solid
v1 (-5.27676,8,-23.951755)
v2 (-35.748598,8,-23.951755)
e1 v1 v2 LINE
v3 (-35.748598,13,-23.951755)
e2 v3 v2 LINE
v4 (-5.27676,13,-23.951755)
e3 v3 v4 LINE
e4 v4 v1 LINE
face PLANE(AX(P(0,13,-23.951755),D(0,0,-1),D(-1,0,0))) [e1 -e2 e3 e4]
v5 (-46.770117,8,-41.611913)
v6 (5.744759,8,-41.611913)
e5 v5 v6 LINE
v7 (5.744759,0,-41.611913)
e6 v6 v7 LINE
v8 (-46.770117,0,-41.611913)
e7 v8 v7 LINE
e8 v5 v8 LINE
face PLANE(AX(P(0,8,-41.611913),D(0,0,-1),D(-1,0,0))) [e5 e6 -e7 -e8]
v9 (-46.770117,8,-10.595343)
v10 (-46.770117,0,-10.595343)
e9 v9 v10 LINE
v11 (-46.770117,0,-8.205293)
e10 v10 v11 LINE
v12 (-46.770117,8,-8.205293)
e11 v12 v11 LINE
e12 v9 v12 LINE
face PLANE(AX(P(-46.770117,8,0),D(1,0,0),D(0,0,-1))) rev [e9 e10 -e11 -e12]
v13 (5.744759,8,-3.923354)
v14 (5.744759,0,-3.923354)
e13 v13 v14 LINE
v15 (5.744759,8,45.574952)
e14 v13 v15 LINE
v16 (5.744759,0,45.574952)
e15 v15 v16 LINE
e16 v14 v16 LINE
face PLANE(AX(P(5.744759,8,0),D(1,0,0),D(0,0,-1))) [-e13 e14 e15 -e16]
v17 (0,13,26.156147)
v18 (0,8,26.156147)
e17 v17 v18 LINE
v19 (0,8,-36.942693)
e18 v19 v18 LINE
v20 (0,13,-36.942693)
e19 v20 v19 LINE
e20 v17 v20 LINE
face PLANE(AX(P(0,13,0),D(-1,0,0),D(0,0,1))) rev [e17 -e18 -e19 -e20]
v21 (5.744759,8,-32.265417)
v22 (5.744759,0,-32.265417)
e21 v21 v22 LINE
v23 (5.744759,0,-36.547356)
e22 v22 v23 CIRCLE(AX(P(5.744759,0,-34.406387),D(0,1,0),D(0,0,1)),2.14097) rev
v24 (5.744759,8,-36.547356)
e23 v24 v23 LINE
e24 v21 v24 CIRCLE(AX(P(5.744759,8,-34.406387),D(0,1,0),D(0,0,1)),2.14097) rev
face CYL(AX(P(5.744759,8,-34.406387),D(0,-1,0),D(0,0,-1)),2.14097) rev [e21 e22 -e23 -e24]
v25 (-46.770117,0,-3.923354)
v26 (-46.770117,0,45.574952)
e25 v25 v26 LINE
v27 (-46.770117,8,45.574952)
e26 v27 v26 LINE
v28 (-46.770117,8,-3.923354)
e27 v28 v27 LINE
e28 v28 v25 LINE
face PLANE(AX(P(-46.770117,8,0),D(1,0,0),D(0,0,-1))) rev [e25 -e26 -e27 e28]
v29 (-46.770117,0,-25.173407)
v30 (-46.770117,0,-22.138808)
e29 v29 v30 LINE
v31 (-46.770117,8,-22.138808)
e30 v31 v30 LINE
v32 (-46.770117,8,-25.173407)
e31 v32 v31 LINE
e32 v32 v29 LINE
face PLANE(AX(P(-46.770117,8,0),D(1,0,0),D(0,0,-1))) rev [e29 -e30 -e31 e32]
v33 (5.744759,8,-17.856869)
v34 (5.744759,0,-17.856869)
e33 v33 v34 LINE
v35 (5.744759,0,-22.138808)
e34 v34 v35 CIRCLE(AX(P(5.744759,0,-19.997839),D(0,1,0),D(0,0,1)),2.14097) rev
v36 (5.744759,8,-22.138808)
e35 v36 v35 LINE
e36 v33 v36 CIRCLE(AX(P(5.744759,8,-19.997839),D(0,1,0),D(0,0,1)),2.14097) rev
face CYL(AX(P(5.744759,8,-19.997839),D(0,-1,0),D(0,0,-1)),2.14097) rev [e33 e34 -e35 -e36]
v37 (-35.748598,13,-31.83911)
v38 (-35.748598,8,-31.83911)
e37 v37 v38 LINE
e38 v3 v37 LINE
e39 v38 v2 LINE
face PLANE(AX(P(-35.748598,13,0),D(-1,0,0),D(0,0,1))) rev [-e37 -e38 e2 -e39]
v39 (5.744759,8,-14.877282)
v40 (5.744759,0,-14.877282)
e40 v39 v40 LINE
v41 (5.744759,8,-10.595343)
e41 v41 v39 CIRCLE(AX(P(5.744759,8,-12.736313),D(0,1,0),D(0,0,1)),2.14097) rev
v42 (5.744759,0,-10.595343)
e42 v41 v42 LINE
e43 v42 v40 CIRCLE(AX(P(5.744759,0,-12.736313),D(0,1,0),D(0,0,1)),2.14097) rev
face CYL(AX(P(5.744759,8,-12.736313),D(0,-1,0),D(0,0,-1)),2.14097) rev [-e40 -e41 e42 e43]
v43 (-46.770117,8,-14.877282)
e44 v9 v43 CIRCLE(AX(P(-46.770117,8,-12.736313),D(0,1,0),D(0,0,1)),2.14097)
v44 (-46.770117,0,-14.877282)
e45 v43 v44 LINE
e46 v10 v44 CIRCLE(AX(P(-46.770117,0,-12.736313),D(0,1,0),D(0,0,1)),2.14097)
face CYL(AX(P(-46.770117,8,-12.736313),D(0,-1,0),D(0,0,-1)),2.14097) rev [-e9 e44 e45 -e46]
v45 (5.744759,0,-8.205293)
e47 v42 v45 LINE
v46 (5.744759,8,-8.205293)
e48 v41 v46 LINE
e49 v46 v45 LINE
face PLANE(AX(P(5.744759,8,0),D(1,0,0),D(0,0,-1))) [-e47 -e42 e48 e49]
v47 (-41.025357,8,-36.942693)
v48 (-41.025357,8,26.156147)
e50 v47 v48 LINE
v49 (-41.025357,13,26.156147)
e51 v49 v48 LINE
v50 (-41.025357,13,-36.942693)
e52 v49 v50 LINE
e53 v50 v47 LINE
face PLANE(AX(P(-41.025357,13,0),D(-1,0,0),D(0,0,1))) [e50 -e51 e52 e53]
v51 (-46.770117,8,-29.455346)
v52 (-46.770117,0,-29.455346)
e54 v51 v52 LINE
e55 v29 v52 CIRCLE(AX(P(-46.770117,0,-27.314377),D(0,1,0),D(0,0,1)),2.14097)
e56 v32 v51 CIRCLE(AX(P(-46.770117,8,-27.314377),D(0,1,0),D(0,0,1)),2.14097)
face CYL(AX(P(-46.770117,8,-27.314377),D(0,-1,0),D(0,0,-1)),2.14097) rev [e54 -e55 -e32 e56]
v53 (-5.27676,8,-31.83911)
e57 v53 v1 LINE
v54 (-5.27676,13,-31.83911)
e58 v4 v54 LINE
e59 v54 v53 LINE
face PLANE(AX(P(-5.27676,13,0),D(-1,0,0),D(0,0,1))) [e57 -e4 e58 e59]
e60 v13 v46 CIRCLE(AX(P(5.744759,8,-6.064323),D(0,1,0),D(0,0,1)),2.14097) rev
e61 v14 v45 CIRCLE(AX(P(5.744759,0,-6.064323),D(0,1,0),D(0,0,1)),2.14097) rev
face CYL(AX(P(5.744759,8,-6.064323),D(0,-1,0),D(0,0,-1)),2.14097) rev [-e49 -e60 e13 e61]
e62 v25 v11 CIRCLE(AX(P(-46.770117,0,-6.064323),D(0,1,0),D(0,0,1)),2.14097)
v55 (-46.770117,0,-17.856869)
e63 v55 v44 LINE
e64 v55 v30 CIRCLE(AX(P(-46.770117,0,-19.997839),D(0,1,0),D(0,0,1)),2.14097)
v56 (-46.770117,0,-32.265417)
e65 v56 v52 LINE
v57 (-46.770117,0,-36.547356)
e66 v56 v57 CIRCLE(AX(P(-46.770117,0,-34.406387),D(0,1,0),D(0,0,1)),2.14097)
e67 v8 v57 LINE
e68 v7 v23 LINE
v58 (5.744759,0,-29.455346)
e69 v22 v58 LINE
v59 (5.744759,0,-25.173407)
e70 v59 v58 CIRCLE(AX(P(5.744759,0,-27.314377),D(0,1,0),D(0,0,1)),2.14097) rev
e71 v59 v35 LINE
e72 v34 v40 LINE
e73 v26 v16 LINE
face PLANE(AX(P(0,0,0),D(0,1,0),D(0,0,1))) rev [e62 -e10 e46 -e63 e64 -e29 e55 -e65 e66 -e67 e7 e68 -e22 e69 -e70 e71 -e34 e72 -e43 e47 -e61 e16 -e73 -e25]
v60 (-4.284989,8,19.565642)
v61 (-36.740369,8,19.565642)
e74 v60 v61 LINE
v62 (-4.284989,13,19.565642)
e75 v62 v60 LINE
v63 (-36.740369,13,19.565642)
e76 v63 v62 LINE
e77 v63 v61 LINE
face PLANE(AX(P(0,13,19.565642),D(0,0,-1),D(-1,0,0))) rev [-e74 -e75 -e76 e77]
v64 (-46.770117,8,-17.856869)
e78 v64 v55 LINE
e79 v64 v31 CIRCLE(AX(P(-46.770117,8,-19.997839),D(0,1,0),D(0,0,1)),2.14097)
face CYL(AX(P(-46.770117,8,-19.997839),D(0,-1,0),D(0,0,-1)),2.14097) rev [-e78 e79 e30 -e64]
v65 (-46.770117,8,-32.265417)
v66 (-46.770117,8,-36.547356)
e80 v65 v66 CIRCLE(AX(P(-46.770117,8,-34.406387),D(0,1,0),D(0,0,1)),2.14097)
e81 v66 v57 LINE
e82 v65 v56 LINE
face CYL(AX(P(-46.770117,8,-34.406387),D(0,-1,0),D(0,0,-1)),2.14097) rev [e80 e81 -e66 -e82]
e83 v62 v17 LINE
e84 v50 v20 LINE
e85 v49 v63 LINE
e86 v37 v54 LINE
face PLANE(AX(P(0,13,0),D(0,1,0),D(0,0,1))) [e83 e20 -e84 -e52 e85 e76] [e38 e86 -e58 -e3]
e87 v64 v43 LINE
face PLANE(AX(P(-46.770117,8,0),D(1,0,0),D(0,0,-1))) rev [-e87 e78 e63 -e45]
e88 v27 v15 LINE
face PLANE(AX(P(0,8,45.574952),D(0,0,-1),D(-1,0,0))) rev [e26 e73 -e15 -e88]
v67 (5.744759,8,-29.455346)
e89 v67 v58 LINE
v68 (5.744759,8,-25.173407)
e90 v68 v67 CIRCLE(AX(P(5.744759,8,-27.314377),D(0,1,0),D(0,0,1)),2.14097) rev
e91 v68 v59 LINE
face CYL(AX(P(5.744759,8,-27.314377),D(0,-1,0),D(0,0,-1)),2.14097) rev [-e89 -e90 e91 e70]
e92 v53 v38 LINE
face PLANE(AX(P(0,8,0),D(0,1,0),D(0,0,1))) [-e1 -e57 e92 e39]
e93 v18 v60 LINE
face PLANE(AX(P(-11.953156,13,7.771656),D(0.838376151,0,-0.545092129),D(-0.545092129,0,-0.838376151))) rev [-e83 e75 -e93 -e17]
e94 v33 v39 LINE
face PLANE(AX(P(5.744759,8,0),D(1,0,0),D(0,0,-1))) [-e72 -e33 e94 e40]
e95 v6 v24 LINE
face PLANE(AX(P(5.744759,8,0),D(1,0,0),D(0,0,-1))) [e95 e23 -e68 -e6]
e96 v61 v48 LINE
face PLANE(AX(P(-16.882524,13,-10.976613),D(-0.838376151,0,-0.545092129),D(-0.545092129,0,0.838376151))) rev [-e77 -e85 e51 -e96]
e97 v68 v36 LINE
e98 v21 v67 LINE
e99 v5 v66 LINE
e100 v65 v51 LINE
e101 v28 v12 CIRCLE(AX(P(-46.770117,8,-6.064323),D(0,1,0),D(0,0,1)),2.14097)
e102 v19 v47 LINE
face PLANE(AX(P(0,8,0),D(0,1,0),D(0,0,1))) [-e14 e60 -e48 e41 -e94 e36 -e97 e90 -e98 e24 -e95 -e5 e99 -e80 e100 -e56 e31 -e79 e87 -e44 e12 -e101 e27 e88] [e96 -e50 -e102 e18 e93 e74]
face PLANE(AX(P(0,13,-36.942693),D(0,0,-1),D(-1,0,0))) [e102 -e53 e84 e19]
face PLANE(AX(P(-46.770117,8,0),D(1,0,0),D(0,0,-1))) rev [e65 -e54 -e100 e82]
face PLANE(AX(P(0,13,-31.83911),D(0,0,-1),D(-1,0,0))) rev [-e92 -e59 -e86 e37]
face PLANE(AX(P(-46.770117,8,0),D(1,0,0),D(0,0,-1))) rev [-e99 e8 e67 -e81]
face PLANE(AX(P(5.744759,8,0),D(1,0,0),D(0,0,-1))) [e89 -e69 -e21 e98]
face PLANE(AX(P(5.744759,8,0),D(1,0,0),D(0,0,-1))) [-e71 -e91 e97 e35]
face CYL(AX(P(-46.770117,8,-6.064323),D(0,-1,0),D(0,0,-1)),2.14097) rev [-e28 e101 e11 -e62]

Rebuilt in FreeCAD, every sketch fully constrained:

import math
import FreeCAD as App
import Part
import Sketcher
from FreeCAD import Vector
Q = App.Units.Quantity


def add_polygon(sketch, points):
    """Adds a closed chain of lines whose ends are joined by coincident constraints."""
    first, n = sketch.GeometryCount, len(points)
    for a, b in zip(points, points[1:] + points[:1]):
        sketch.addGeometry(Part.LineSegment(App.Vector(*a, 0), App.Vector(*b, 0)), False)
    for i in range(n):
        sketch.addConstraint(Sketcher.Constraint("Coincident", first + i, 2, first + (i + 1) % n, 1))

doc = App.newDocument("Part")
body = doc.addObject("PartDesign::Body", "Body")

# Sketch on XZ plane
sketch1 = body.newObject("Sketcher::SketchObject", "Sketch")
sketch1.AttachmentSupport = (doc.getObject("XZ_Plane"), [""])
sketch1.MapMode = "FlatFace"
sketch1.addGeometry([
    Part.LineSegment(Vector(5.7, -41.6, 0), Vector(-46.8, -41.6, 0)),  # 0
    Part.LineSegment(Vector(-46.8, -41.6, 0), Vector(-46.8, -36.5, 0)),  # 1
    Part.ArcOfCircle(Part.Circle(Vector(-46.8, -34.4, 0), Vector(0, 0, 1), 2.1), math.radians(-90), math.radians(90)),  # 2
    Part.LineSegment(Vector(-46.8, -32.3, 0), Vector(-46.8, -29.5, 0)),  # 3
    Part.ArcOfCircle(Part.Circle(Vector(-46.8, -27.3, 0), Vector(0, 0, 1), 2.1), math.radians(-90), math.radians(90)),  # 4
    Part.LineSegment(Vector(-46.8, -25.2, 0), Vector(-46.8, -22.1, 0)),  # 5
    Part.ArcOfCircle(Part.Circle(Vector(-46.8, -20, 0), Vector(0, 0, 1), 2.1), math.radians(-90), math.radians(90)),  # 6
    Part.LineSegment(Vector(-46.8, -17.9, 0), Vector(-46.8, -14.9, 0)),  # 7
    Part.ArcOfCircle(Part.Circle(Vector(-46.8, -12.7, 0), Vector(0, 0, 1), 2.1), math.radians(-90), math.radians(90)),  # 8
    Part.LineSegment(Vector(-46.8, -10.6, 0), Vector(-46.8, -8.2, 0)),  # 9
    Part.ArcOfCircle(Part.Circle(Vector(-46.8, -6.1, 0), Vector(0, 0, 1), 2.1), math.radians(-90), math.radians(90)),  # 10
    Part.LineSegment(Vector(-46.8, -3.9, 0), Vector(-46.8, 45.6, 0)),  # 11
    Part.LineSegment(Vector(-46.8, 45.6, 0), Vector(5.7, 45.6, 0)),  # 12
    Part.LineSegment(Vector(5.7, 45.6, 0), Vector(5.7, -3.9, 0)),  # 13
    Part.ArcOfCircle(Part.Circle(Vector(5.7, -6.1, 0), Vector(0, 0, 1), 2.1), math.radians(90), math.radians(270)),  # 14
    Part.LineSegment(Vector(5.7, -8.2, 0), Vector(5.7, -10.6, 0)),  # 15
    Part.ArcOfCircle(Part.Circle(Vector(5.7, -12.7, 0), Vector(0, 0, 1), 2.1), math.radians(90), math.radians(270)),  # 16
    Part.LineSegment(Vector(5.7, -14.9, 0), Vector(5.7, -17.9, 0)),  # 17
    Part.ArcOfCircle(Part.Circle(Vector(5.7, -20, 0), Vector(0, 0, 1), 2.1), math.radians(90), math.radians(270)),  # 18
    Part.LineSegment(Vector(5.7, -22.1, 0), Vector(5.7, -25.2, 0)),  # 19
    Part.ArcOfCircle(Part.Circle(Vector(5.7, -27.3, 0), Vector(0, 0, 1), 2.1), math.radians(90), math.radians(270)),  # 20
    Part.LineSegment(Vector(5.7, -29.5, 0), Vector(5.7, -32.3, 0)),  # 21
    Part.ArcOfCircle(Part.Circle(Vector(5.7, -34.4, 0), Vector(0, 0, 1), 2.1), math.radians(90), math.radians(270)),  # 22
    Part.LineSegment(Vector(5.7, -36.5, 0), Vector(5.7, -41.6, 0)),  # 23
], False)
sketch1.addConstraint([
    Sketcher.Constraint("Coincident", 0, 2, 1, 1),
    Sketcher.Constraint("Coincident", 1, 2, 2, 1),
    Sketcher.Constraint("Coincident", 2, 2, 3, 1),
    Sketcher.Constraint("Coincident", 3, 2, 4, 1),
    Sketcher.Constraint("Coincident", 4, 2, 5, 1),
    Sketcher.Constraint("Coincident", 5, 2, 6, 1),
    Sketcher.Constraint("Coincident", 6, 2, 7, 1),
    Sketcher.Constraint("Coincident", 7, 2, 8, 1),
    Sketcher.Constraint("Coincident", 8, 2, 9, 1),
    Sketcher.Constraint("Coincident", 9, 2, 10, 1),
    Sketcher.Constraint("Coincident", 10, 2, 11, 1),
    Sketcher.Constraint("Coincident", 11, 2, 12, 1),
    Sketcher.Constraint("Coincident", 12, 2, 13, 1),
    Sketcher.Constraint("Coincident", 13, 2, 14, 1),
    Sketcher.Constraint("Coincident", 14, 2, 15, 1),
    Sketcher.Constraint("Coincident", 15, 2, 16, 1),
    Sketcher.Constraint("Coincident", 16, 2, 17, 1),
    Sketcher.Constraint("Coincident", 17, 2, 18, 1),
    Sketcher.Constraint("Coincident", 18, 2, 19, 1),
    Sketcher.Constraint("Coincident", 19, 2, 20, 1),
    Sketcher.Constraint("Coincident", 20, 2, 21, 1),
    Sketcher.Constraint("Coincident", 21, 2, 22, 1),
    Sketcher.Constraint("Coincident", 22, 2, 23, 1),
    Sketcher.Constraint("Coincident", 23, 2, 0, 1),
    Sketcher.Constraint("Horizontal", 0),
    Sketcher.Constraint("Vertical", 1),
    Sketcher.Constraint("Vertical", 3),
    Sketcher.Constraint("Vertical", 5),
    Sketcher.Constraint("Vertical", 7),
    Sketcher.Constraint("Vertical", 9),
    Sketcher.Constraint("Vertical", 11),
    Sketcher.Constraint("Horizontal", 12),
    Sketcher.Constraint("Vertical", 13),
    Sketcher.Constraint("Vertical", 15),
    Sketcher.Constraint("Vertical", 17),
    Sketcher.Constraint("Vertical", 19),
    Sketcher.Constraint("Vertical", 21),
    Sketcher.Constraint("Vertical", 23),
    Sketcher.Constraint("Equal", 2, 4),
    Sketcher.Constraint("Equal", 4, 6),
    Sketcher.Constraint("Equal", 6, 8),
    Sketcher.Constraint("Equal", 8, 10),
    Sketcher.Constraint("Equal", 10, 14),
    Sketcher.Constraint("Equal", 14, 16),
    Sketcher.Constraint("Equal", 16, 18),
    Sketcher.Constraint("Equal", 18, 20),
    Sketcher.Constraint("Equal", 20, 22),
    Sketcher.Constraint("Horizontal", 10, 3, 14, 3),
    Sketcher.Constraint("Horizontal", 8, 3, 16, 3),
    Sketcher.Constraint("Horizontal", 6, 3, 18, 3),
    Sketcher.Constraint("Horizontal", 4, 3, 20, 3),
    Sketcher.Constraint("Horizontal", 2, 3, 22, 3),
    Sketcher.Constraint("Vertical", 2, 3, 4, 3),
    Sketcher.Constraint("Vertical", 4, 3, 6, 3),
    Sketcher.Constraint("Vertical", 6, 3, 8, 3),
    Sketcher.Constraint("Vertical", 8, 3, 10, 3),
    Sketcher.Constraint("Vertical", 14, 3, 16, 3),
    Sketcher.Constraint("Vertical", 16, 3, 18, 3),
    Sketcher.Constraint("Vertical", 18, 3, 20, 3),
    Sketcher.Constraint("Vertical", 20, 3, 22, 3),
    Sketcher.Constraint("Vertical", 10, 3, 0, 2),
    Sketcher.Constraint("Vertical", 1, 2, 2, 2),
    Sketcher.Constraint("Vertical", 3, 2, 4, 2),
    Sketcher.Constraint("Vertical", 5, 2, 6, 2),
    Sketcher.Constraint("Vertical", 7, 2, 8, 2),
    Sketcher.Constraint("Vertical", 9, 2, 10, 2),
    Sketcher.Constraint("Vertical", 22, 3, 12, 2),
    Sketcher.Constraint("Vertical", 13, 2, 14, 2),
    Sketcher.Constraint("Vertical", 15, 2, 16, 2),
    Sketcher.Constraint("Vertical", 17, 2, 18, 2),
    Sketcher.Constraint("Vertical", 19, 2, 20, 2),
    Sketcher.Constraint("Vertical", 21, 2, 22, 2),
    Sketcher.Constraint("Radius", 2, Q("2.14097 mm")),
    Sketcher.Constraint("DistanceY", 5, 1, 5, 2, Q("3.034598 mm")),
    Sketcher.Constraint("DistanceY", 3, 1, 3, 2, Q("2.810071 mm")),
    Sketcher.Constraint("DistanceY", 9, 1, 9, 2, Q("2.39005 mm")),
    Sketcher.Constraint("DistanceY", 0, 2, 8, 3, Q("28.8756 mm")),
    Sketcher.Constraint("DistanceX", 0, 2, 0, 1, Q("52.514876 mm")),
    Sketcher.Constraint("DistanceY", 1, 1, 1, 2, Q("5.064556 mm")),
    Sketcher.Constraint("DistanceY", 11, 1, 11, 2, Q("49.498306 mm")),
    Sketcher.Constraint("DistanceY", 6, 3, -1, 1, Q("19.997839 mm")),
    Sketcher.Constraint("DistanceX", -1, 1, 14, 3, Q("5.744759 mm")),
])
pad1 = body.newObject("PartDesign::Pad", "Pad")
pad1.Profile = sketch1
pad1.Length = 8
pad1.Reversed = True

# Sketch on XZ plane
sketch2 = body.newObject("Sketcher::SketchObject", "Sketch001")
sketch2.AttachmentSupport = (doc.getObject("XZ_Plane"), [""])
sketch2.MapMode = "FlatFace"
add_polygon(sketch2, [(-37, 20), (-4, 20), (0, 26), (0, -37), (-41, -37), (-41, 26)])  # lines 0-5
add_polygon(sketch2, [(-5, -24), (-36, -24), (-36, -32), (-5, -32)])  # lines 6-9
sketch2.addConstraint([
    Sketcher.Constraint("Horizontal", 0),
    Sketcher.Constraint("Vertical", 2),
    Sketcher.Constraint("Horizontal", 3),
    Sketcher.Constraint("Vertical", 4),
    Sketcher.Constraint("Horizontal", 6),
    Sketcher.Constraint("Vertical", 7),
    Sketcher.Constraint("Horizontal", 8),
    Sketcher.Constraint("Vertical", 9),
    Sketcher.Constraint("PointOnObject", 1, 2, -2),
    Sketcher.Constraint("Horizontal", 1, 2, 4, 2),
    Sketcher.Constraint("Equal", 1, 5),
    Sketcher.Constraint("DistanceX", 0, 1, 0, 2, Q("32.45538 mm")),
    Sketcher.Constraint("DistanceX", 6, 2, 6, 1, Q("30.471838 mm")),
    Sketcher.Constraint("DistanceY", 2, 2, 2, 1, Q("63.09884 mm")),
    Sketcher.Constraint("DistanceX", 3, 2, 3, 1, Q("41.025357 mm")),
    Sketcher.Constraint("DistanceY", 7, 2, 7, 1, Q("7.887355 mm")),
    Sketcher.Constraint("DistanceY", 7, 2, -1, 1, Q("31.83911 mm")),
    Sketcher.Constraint("DistanceX", 8, 2, -1, 1, Q("5.27676 mm")),
    Sketcher.Constraint("Distance", 1, Q("7.861036 mm")),
    Sketcher.Constraint("DistanceY", -1, 1, 0, 2, Q("19.565642 mm")),
])
pad2 = body.newObject("PartDesign::Pad", "Pad001")
pad2.Profile = sketch2
pad2.Length = 13
pad2.Reversed = True

doc.recompute()
